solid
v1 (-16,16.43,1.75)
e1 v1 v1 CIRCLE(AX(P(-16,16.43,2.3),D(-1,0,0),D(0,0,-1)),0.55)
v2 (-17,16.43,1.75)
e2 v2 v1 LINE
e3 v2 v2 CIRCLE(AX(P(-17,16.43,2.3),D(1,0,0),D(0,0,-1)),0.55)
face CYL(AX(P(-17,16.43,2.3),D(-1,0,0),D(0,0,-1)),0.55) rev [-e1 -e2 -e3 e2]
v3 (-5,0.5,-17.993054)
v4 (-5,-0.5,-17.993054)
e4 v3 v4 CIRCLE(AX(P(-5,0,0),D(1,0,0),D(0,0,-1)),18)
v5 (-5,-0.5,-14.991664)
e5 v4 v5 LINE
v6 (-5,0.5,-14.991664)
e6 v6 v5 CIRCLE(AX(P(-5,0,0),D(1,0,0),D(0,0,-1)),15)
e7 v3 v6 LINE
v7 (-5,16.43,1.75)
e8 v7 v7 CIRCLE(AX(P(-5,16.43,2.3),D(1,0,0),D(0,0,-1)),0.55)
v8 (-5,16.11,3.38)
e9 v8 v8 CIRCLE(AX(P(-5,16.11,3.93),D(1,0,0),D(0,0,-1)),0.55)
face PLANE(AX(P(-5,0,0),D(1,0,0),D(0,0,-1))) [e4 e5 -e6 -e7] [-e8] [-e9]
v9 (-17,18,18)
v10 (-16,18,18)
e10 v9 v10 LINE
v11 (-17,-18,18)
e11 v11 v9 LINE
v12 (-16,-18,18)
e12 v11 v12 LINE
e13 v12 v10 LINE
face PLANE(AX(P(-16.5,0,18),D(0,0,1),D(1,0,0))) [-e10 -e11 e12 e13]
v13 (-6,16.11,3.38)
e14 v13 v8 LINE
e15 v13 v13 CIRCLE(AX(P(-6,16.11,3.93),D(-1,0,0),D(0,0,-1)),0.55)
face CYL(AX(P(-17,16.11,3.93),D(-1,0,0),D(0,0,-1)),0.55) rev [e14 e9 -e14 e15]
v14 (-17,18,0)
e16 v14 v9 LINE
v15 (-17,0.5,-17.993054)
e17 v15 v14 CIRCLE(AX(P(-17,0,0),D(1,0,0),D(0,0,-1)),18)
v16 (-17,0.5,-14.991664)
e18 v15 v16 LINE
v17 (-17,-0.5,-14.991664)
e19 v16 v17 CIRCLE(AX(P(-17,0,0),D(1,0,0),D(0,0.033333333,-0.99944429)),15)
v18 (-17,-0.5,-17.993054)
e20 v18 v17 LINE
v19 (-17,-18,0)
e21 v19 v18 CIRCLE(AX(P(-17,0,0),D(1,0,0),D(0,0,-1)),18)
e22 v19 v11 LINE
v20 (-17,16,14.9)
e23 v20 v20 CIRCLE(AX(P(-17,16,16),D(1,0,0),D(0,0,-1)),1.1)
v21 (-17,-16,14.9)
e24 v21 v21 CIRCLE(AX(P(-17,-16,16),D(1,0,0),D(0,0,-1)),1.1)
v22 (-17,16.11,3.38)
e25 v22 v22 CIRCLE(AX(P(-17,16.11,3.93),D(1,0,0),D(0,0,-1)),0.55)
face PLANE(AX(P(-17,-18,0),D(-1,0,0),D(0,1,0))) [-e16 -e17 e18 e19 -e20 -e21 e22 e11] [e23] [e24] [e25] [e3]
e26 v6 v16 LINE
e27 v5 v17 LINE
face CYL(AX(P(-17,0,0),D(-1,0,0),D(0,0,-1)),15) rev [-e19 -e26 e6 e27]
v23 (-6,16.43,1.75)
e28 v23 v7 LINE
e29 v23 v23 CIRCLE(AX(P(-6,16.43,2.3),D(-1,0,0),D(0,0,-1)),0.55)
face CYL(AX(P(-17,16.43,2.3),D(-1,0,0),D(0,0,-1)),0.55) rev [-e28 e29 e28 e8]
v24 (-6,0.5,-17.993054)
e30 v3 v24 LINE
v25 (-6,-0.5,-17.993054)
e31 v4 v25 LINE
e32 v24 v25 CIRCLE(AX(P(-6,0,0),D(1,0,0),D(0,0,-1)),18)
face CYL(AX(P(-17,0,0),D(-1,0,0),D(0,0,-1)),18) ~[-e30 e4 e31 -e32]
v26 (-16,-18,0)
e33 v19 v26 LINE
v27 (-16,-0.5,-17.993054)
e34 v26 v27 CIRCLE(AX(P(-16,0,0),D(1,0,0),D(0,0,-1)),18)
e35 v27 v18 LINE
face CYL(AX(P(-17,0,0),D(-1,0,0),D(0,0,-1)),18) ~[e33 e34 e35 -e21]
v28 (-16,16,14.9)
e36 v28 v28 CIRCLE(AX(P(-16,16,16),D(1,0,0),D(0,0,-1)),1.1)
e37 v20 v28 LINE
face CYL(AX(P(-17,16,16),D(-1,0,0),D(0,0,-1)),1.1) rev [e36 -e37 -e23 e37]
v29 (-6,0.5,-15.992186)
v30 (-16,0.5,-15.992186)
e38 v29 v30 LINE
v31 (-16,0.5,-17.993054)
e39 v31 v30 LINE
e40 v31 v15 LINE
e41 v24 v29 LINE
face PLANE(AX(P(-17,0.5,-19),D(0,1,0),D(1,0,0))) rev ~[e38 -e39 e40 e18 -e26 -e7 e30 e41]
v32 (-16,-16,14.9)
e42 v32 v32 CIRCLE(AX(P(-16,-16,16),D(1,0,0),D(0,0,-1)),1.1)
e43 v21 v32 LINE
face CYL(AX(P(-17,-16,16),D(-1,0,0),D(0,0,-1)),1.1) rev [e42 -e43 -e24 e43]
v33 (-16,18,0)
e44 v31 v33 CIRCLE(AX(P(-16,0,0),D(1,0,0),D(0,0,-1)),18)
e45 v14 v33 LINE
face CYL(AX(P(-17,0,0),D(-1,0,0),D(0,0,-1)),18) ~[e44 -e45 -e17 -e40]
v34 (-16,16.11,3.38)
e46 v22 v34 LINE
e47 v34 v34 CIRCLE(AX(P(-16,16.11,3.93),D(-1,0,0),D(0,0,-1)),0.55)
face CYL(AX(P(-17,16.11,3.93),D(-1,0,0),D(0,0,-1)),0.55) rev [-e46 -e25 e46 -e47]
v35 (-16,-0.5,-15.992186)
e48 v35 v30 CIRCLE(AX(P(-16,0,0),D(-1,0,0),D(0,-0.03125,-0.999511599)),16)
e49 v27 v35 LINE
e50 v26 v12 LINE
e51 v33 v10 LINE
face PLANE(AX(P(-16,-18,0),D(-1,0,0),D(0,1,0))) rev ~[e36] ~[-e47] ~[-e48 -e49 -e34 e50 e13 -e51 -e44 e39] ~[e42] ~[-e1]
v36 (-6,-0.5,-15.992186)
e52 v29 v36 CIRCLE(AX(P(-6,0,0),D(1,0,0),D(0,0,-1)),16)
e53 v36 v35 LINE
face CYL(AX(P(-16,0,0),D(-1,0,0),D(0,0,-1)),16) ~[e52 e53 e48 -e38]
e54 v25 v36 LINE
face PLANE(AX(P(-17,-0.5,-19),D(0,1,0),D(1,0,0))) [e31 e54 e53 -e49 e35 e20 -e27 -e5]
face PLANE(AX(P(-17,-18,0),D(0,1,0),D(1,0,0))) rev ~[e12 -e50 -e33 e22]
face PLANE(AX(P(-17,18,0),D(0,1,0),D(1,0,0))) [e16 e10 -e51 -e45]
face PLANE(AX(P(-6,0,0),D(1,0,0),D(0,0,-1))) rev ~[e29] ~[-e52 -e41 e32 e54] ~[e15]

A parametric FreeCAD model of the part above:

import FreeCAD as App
import Part
import Sketcher

V = App.Vector
Q = App.Units.Quantity


def add_polygon(sketch, points):
    """Adds a closed chain of lines whose ends are joined by coincident constraints."""
    first, n = sketch.GeometryCount, len(points)
    for a, b in zip(points, points[1:] + points[:1]):
        sketch.addGeometry(Part.LineSegment(App.Vector(*a, 0), App.Vector(*b, 0)), False)
    for i in range(n):
        sketch.addConstraint(Sketcher.Constraint("Coincident", first + i, 2, first + (i + 1) % n, 1))

doc = App.newDocument("Part")
params = doc.addObject("Spreadsheet::Sheet", "Params")
for row, (alias, value) in enumerate([
    ("sketch1_diameter", "1.1 mm"),
    ("pad1_length", "12 mm"),
    ("sketch2_diameter", "1.1 mm"),
    ("pad2_length", "12 mm"),
    ("sketch3_diameter", "30 mm"),
    ("pad3_length", "12 mm"),
    ("sketch4_diameter", "2.2 mm"),
    ("pad4_length", "1 mm"),
    ("sketch5_diameter", "2.2 mm"),
    ("pad5_length", "1 mm"),
    ("sketch6_width", "1 mm"),
    ("sketch6_height", "36 mm"),
    ("pad6_length", "18 mm"),
    ("sketch7_diameter", "1.1 mm"),
    ("pad7_length", "12 mm"),
    ("sketch8_diameter", "1.1 mm"),
    ("pad8_length", "12 mm"),
    ("sketch9_width", "12 mm"),
    ("sketch9_height", "1 mm"),
    ("pad9_length", "5 mm"),
    ("sketch10_diameter", "32 mm"),
    ("pad10_length", "10 mm"),
    ("sketch11_diameter", "36 mm"),
    ("pad11_length", "10 mm"),
    ("sketch12_diameter", "30 mm"),
    ("pad12_length", "12 mm"),
    ("sketch13_diameter", "36 mm"),
    ("pad13_length", "12 mm"),
], start=1):
    params.set(f"A{row}", alias)
    params.set(f"B{row}", "=" + value)
    params.setAlias(f"B{row}", alias)

body = doc.addObject("PartDesign::Body", "Body")

sketch1 = body.newObject("Sketcher::SketchObject", "Sketch")
sketch1.AttachmentSupport = (doc.getObject("YZ_Plane"), [""])
sketch1.MapMode = "FlatFace"
sketch1.AttachmentOffset = App.Placement(V(0, 0, -17), App.Rotation())
sketch1.addGeometry(Part.Circle(V(16.1, 3.9, 0), V(0, 0, 1), 0.6), False)
sketch1.addConstraint([
    Sketcher.Constraint("Diameter", 0, Q("1.1 mm")),
    Sketcher.Constraint("DistanceX", -1, 1, 0, 3, Q("16.11 mm")),
    Sketcher.Constraint("DistanceY", -1, 1, 0, 3, Q("3.93 mm")),
])
sketch1.setExpression("Constraints[0]", "Params.sketch1_diameter")
pad1 = body.newObject("PartDesign::Pad", "Pad")
pad1.Profile = sketch1
pad1.setExpression("Length", "Params.pad1_length")
body2 = doc.addObject("PartDesign::Body", "Body001")
body2.AllowCompound = True

sketch2 = body2.newObject("Sketcher::SketchObject", "Sketch001")
sketch2.AttachmentSupport = (doc.getObject("YZ_Plane001"), [""])
sketch2.MapMode = "FlatFace"
sketch2.AttachmentOffset = App.Placement(V(0, 0, -17), App.Rotation())
sketch2.addGeometry(Part.Circle(V(16.4, 2.3, 0), V(0, 0, 1), 0.6), False)
sketch2.addConstraint([
    Sketcher.Constraint("Diameter", 0, Q("1.1 mm")),
    Sketcher.Constraint("DistanceY", -1, 1, 0, 3, Q("2.3 mm")),
    Sketcher.Constraint("DistanceX", -1, 1, 0, 3, Q("16.43 mm")),
])
sketch2.setExpression("Constraints[0]", "Params.sketch2_diameter")
pad2 = body2.newObject("PartDesign::Pad", "Pad001")
pad2.Profile = sketch2
pad2.setExpression("Length", "Params.pad2_length")
doc.recompute()

boolean = body2.newObject("PartDesign::Boolean", "Boolean")
boolean.Type = "Fuse"
boolean.addObjects([body])
body3 = doc.addObject("PartDesign::Body", "Body002")

sketch3 = body3.newObject("Sketcher::SketchObject", "Sketch002")
sketch3.AttachmentSupport = (doc.getObject("YZ_Plane002"), [""])
sketch3.MapMode = "FlatFace"
sketch3.AttachmentOffset = App.Placement(V(0, 0, -17), App.Rotation())
sketch3.addGeometry(Part.Circle(V(0, 0, 0), V(0, 0, 1), 15), False)
sketch3.addConstraint([
    Sketcher.Constraint("Coincident", 0, 3, -1, 1),
    Sketcher.Constraint("Diameter", 0, Q("30 mm")),
])
sketch3.setExpression("Constraints[1]", "Params.sketch3_diameter")
pad3 = body3.newObject("PartDesign::Pad", "Pad002")
pad3.Profile = sketch3
pad3.setExpression("Length", "Params.pad3_length")
body4 = doc.addObject("PartDesign::Body", "Body003")

sketch4 = body4.newObject("Sketcher::SketchObject", "Sketch003")
sketch4.AttachmentSupport = (doc.getObject("YZ_Plane003"), [""])
sketch4.MapMode = "FlatFace"
sketch4.AttachmentOffset = App.Placement(V(0, 0, -17), App.Rotation())
sketch4.addGeometry(Part.Circle(V(16, 16, 0), V(0, 0, 1), 1.1), False)
sketch4.addConstraint([
    Sketcher.Constraint("Diameter", 0, Q("2.2 mm")),
    Sketcher.Constraint("DistanceX", -1, 1, 0, 3, Q("16 mm")),
    Sketcher.Constraint("DistanceY", -1, 1, 0, 3, Q("16 mm")),
])
sketch4.setExpression("Constraints[0]", "Params.sketch4_diameter")
pad4 = body4.newObject("PartDesign::Pad", "Pad003")
pad4.Profile = sketch4
pad4.setExpression("Length", "Params.pad4_length")
body5 = doc.addObject("PartDesign::Body", "Body004")
body5.AllowCompound = True

sketch5 = body5.newObject("Sketcher::SketchObject", "Sketch004")
sketch5.AttachmentSupport = (doc.getObject("YZ_Plane004"), [""])
sketch5.MapMode = "FlatFace"
sketch5.AttachmentOffset = App.Placement(V(0, 0, -17), App.Rotation())
sketch5.addGeometry(Part.Circle(V(-16, 16, 0), V(0, 0, 1), 1.1), False)
sketch5.addConstraint([
    Sketcher.Constraint("Diameter", 0, Q("2.2 mm")),
    Sketcher.Constraint("DistanceX", 0, 3, -1, 1, Q("16 mm")),
    Sketcher.Constraint("DistanceY", -1, 1, 0, 3, Q("16 mm")),
])
sketch5.setExpression("Constraints[0]", "Params.sketch5_diameter")
pad5 = body5.newObject("PartDesign::Pad", "Pad004")
pad5.Profile = sketch5
pad5.setExpression("Length", "Params.pad5_length")
doc.recompute()

boolean2 = body5.newObject("PartDesign::Boolean", "Boolean001")
boolean2.Type = "Fuse"
boolean2.addObjects([body4])
body6 = doc.addObject("PartDesign::Body", "Body005")

sketch6 = body6.newObject("Sketcher::SketchObject", "Sketch005")
sketch6.AttachmentSupport = (doc.getObject("XY_Plane005"), [""])
sketch6.MapMode = "FlatFace"
add_polygon(sketch6, [(-17, 18), (-17, -18), (-16, -18), (-16, 18)])
sketch6.addConstraint([
    Sketcher.Constraint("Vertical", 0),
    Sketcher.Constraint("Horizontal", 1),
    Sketcher.Constraint("Vertical", 2),
    Sketcher.Constraint("Horizontal", 3),
    Sketcher.Constraint("DistanceX", 1, 1, 1, 2, Q("1 mm")),
    Sketcher.Constraint("DistanceY", 0, 2, 0, 1, Q("36 mm")),
    Sketcher.Constraint("DistanceX", 0, 2, -1, 1, Q("17 mm")),
    Sketcher.Constraint("DistanceY", 0, 2, -1, 1, Q("18 mm")),
])
sketch6.setExpression("Constraints[8]", "Params.sketch6_width")
sketch6.setExpression("Constraints[9]", "Params.sketch6_height")
pad6 = body6.newObject("PartDesign::Pad", "Pad005")
pad6.Profile = sketch6
pad6.setExpression("Length", "Params.pad6_length")
doc.recompute()

boolean3 = body6.newObject("PartDesign::Boolean", "Boolean002")
boolean3.Type = "Cut"
boolean3.addObjects([body5])
doc.recompute()

boolean4 = body6.newObject("PartDesign::Boolean", "Boolean003")
boolean4.Type = "Cut"
boolean4.addObjects([body3])
doc.recompute()

boolean5 = body6.newObject("PartDesign::Boolean", "Boolean004")
boolean5.Type = "Cut"
boolean5.addObjects([body2])
body7 = doc.addObject("PartDesign::Body", "Body006")

sketch7 = body7.newObject("Sketcher::SketchObject", "Sketch006")
sketch7.AttachmentSupport = (doc.getObject("YZ_Plane006"), [""])
sketch7.MapMode = "FlatFace"
sketch7.AttachmentOffset = App.Placement(V(0, 0, -17), App.Rotation())
sketch7.addGeometry(Part.Circle(V(16.1, 3.9, 0), V(0, 0, 1), 0.6), False)
sketch7.addConstraint([
    Sketcher.Constraint("Diameter", 0, Q("1.1 mm")),
    Sketcher.Constraint("DistanceX", -1, 1, 0, 3, Q("16.11 mm")),
    Sketcher.Constraint("DistanceY", -1, 1, 0, 3, Q("3.93 mm")),
])
sketch7.setExpression("Constraints[0]", "Params.sketch7_diameter")
pad7 = body7.newObject("PartDesign::Pad", "Pad006")
pad7.Profile = sketch7
pad7.setExpression("Length", "Params.pad7_length")
body8 = doc.addObject("PartDesign::Body", "Body007")
body8.AllowCompound = True

sketch8 = body8.newObject("Sketcher::SketchObject", "Sketch007")
sketch8.AttachmentSupport = (doc.getObject("YZ_Plane007"), [""])
sketch8.MapMode = "FlatFace"
sketch8.AttachmentOffset = App.Placement(V(0, 0, -17), App.Rotation())
sketch8.addGeometry(Part.Circle(V(16.4, 2.3, 0), V(0, 0, 1), 0.6), False)
sketch8.addConstraint([
    Sketcher.Constraint("Diameter", 0, Q("1.1 mm")),
    Sketcher.Constraint("DistanceY", -1, 1, 0, 3, Q("2.3 mm")),
    Sketcher.Constraint("DistanceX", -1, 1, 0, 3, Q("16.43 mm")),
])
sketch8.setExpression("Constraints[0]", "Params.sketch8_diameter")
pad8 = body8.newObject("PartDesign::Pad", "Pad007")
pad8.Profile = sketch8
pad8.setExpression("Length", "Params.pad8_length")
doc.recompute()

boolean6 = body8.newObject("PartDesign::Boolean", "Boolean005")
boolean6.Type = "Fuse"
boolean6.addObjects([body7])
body9 = doc.addObject("PartDesign::Body", "Body008")

sketch9 = body9.newObject("Sketcher::SketchObject", "Sketch008")
sketch9.AttachmentSupport = (doc.getObject("XY_Plane008"), [""])
sketch9.MapMode = "FlatFace"
sketch9.AttachmentOffset = App.Placement(V(0, 0, -19), App.Rotation())
add_polygon(sketch9, [(-17, 0.5), (-17, -0.5), (-5, -0.5), (-5, 0.5)])
sketch9.addConstraint([
    Sketcher.Constraint("Vertical", 0),
    Sketcher.Constraint("Horizontal", 1),
    Sketcher.Constraint("Vertical", 2),
    Sketcher.Constraint("Horizontal", 3),
    Sketcher.Constraint("DistanceX", 1, 1, 1, 2, Q("12 mm")),
    Sketcher.Constraint("DistanceY", 0, 2, 0, 1, Q("1 mm")),
    Sketcher.Constraint("DistanceX", 0, 2, -1, 1, Q("17 mm")),
    Sketcher.Constraint("DistanceY", 0, 2, -1, 1, Q("0.5 mm")),
])
sketch9.setExpression("Constraints[8]", "Params.sketch9_width")
sketch9.setExpression("Constraints[9]", "Params.sketch9_height")
pad9 = body9.newObject("PartDesign::Pad", "Pad008")
pad9.Profile = sketch9
pad9.setExpression("Length", "Params.pad9_length")
body10 = doc.addObject("PartDesign::Body", "Body009")

sketch10 = body10.newObject("Sketcher::SketchObject", "Sketch009")
sketch10.AttachmentSupport = (doc.getObject("YZ_Plane009"), [""])
sketch10.MapMode = "FlatFace"
sketch10.addGeometry(Part.Circle(V(0, 0, 0), V(0, 0, 1), 16), False)
sketch10.addConstraint([
    Sketcher.Constraint("Coincident", 0, 3, -1, 1),
    Sketcher.Constraint("Diameter", 0, Q("32 mm")),
])
sketch10.setExpression("Constraints[1]", "Params.sketch10_diameter")
pad10 = body10.newObject("PartDesign::Pad", "Pad009")
pad10.Profile = sketch10
pad10.setExpression("Length", "Params.pad10_length")
body11 = doc.addObject("PartDesign::Body", "Body010")

sketch11 = body11.newObject("Sketcher::SketchObject", "Sketch010")
sketch11.AttachmentSupport = (doc.getObject("YZ_Plane010"), [""])
sketch11.MapMode = "FlatFace"
sketch11.addGeometry(Part.Circle(V(0, 0, 0), V(0, 0, 1), 18), False)
sketch11.addConstraint([
    Sketcher.Constraint("Coincident", 0, 3, -1, 1),
    Sketcher.Constraint("Diameter", 0, Q("36 mm")),
])
sketch11.setExpression("Constraints[1]", "Params.sketch11_diameter")
pad11 = body11.newObject("PartDesign::Pad", "Pad010")
pad11.Profile = sketch11
pad11.setExpression("Length", "Params.pad11_length")
doc.recompute()

boolean7 = body11.newObject("PartDesign::Boolean", "Boolean006")
boolean7.Type = "Cut"
boolean7.addObjects([body10])
body12 = doc.addObject("PartDesign::Body", "Body011")
doc.recompute()

body11.Placement = App.Placement(V(-16, 0, 0), App.Rotation(V(0, 0, 1), 0))
boolean8 = body12.newObject("PartDesign::Boolean", "Boolean007")
boolean8.Type = "Fuse"
boolean8.addObjects([body11])
body13 = doc.addObject("PartDesign::Body", "Body012")

sketch12 = body13.newObject("Sketcher::SketchObject", "Sketch011")
sketch12.AttachmentSupport = (doc.getObject("YZ_Plane012"), [""])
sketch12.MapMode = "FlatFace"
sketch12.addGeometry(Part.Circle(V(0, 0, 0), V(0, 0, 1), 15), False)
sketch12.addConstraint([
    Sketcher.Constraint("Coincident", 0, 3, -1, 1),
    Sketcher.Constraint("Diameter", 0, Q("30 mm")),
])
sketch12.setExpression("Constraints[1]", "Params.sketch12_diameter")
pad12 = body13.newObject("PartDesign::Pad", "Pad011")
pad12.Profile = sketch12
pad12.setExpression("Length", "Params.pad12_length")
body14 = doc.addObject("PartDesign::Body", "Body013")

sketch13 = body14.newObject("Sketcher::SketchObject", "Sketch012")
sketch13.AttachmentSupport = (doc.getObject("YZ_Plane013"), [""])
sketch13.MapMode = "FlatFace"
sketch13.addGeometry(Part.Circle(V(0, 0, 0), V(0, 0, 1), 18), False)
sketch13.addConstraint([
    Sketcher.Constraint("Coincident", 0, 3, -1, 1),
    Sketcher.Constraint("Diameter", 0, Q("36 mm")),
])
sketch13.setExpression("Constraints[1]", "Params.sketch13_diameter")
pad13 = body14.newObject("PartDesign::Pad", "Pad012")
pad13.Profile = sketch13
pad13.setExpression("Length", "Params.pad13_length")
doc.recompute()

boolean9 = body14.newObject("PartDesign::Boolean", "Boolean008")
boolean9.Type = "Cut"
boolean9.addObjects([body13])
body15 = doc.addObject("PartDesign::Body", "Body014")
doc.recompute()

body14.Placement = App.Placement(V(-17, 0, 0), App.Rotation(V(0, 0, 1), 0))
boolean10 = body15.newObject("PartDesign::Boolean", "Boolean009")
boolean10.Type = "Fuse"
boolean10.addObjects([body14])
doc.recompute()

boolean11 = body15.newObject("PartDesign::Boolean", "Boolean010")
boolean11.Type = "Cut"
boolean11.addObjects([body12])
doc.recompute()

boolean12 = body15.newObject("PartDesign::Boolean", "Boolean011")
boolean12.Type = "Cut"
boolean12.addObjects([body9])
doc.recompute()

boolean13 = body15.newObject("PartDesign::Boolean", "Boolean012")
boolean13.Type = "Cut"
boolean13.addObjects([body8])
doc.recompute()

boolean14 = body15.newObject("PartDesign::Boolean", "Boolean013")
boolean14.Type = "Fuse"
boolean14.addObjects([body6])

doc.recompute()
